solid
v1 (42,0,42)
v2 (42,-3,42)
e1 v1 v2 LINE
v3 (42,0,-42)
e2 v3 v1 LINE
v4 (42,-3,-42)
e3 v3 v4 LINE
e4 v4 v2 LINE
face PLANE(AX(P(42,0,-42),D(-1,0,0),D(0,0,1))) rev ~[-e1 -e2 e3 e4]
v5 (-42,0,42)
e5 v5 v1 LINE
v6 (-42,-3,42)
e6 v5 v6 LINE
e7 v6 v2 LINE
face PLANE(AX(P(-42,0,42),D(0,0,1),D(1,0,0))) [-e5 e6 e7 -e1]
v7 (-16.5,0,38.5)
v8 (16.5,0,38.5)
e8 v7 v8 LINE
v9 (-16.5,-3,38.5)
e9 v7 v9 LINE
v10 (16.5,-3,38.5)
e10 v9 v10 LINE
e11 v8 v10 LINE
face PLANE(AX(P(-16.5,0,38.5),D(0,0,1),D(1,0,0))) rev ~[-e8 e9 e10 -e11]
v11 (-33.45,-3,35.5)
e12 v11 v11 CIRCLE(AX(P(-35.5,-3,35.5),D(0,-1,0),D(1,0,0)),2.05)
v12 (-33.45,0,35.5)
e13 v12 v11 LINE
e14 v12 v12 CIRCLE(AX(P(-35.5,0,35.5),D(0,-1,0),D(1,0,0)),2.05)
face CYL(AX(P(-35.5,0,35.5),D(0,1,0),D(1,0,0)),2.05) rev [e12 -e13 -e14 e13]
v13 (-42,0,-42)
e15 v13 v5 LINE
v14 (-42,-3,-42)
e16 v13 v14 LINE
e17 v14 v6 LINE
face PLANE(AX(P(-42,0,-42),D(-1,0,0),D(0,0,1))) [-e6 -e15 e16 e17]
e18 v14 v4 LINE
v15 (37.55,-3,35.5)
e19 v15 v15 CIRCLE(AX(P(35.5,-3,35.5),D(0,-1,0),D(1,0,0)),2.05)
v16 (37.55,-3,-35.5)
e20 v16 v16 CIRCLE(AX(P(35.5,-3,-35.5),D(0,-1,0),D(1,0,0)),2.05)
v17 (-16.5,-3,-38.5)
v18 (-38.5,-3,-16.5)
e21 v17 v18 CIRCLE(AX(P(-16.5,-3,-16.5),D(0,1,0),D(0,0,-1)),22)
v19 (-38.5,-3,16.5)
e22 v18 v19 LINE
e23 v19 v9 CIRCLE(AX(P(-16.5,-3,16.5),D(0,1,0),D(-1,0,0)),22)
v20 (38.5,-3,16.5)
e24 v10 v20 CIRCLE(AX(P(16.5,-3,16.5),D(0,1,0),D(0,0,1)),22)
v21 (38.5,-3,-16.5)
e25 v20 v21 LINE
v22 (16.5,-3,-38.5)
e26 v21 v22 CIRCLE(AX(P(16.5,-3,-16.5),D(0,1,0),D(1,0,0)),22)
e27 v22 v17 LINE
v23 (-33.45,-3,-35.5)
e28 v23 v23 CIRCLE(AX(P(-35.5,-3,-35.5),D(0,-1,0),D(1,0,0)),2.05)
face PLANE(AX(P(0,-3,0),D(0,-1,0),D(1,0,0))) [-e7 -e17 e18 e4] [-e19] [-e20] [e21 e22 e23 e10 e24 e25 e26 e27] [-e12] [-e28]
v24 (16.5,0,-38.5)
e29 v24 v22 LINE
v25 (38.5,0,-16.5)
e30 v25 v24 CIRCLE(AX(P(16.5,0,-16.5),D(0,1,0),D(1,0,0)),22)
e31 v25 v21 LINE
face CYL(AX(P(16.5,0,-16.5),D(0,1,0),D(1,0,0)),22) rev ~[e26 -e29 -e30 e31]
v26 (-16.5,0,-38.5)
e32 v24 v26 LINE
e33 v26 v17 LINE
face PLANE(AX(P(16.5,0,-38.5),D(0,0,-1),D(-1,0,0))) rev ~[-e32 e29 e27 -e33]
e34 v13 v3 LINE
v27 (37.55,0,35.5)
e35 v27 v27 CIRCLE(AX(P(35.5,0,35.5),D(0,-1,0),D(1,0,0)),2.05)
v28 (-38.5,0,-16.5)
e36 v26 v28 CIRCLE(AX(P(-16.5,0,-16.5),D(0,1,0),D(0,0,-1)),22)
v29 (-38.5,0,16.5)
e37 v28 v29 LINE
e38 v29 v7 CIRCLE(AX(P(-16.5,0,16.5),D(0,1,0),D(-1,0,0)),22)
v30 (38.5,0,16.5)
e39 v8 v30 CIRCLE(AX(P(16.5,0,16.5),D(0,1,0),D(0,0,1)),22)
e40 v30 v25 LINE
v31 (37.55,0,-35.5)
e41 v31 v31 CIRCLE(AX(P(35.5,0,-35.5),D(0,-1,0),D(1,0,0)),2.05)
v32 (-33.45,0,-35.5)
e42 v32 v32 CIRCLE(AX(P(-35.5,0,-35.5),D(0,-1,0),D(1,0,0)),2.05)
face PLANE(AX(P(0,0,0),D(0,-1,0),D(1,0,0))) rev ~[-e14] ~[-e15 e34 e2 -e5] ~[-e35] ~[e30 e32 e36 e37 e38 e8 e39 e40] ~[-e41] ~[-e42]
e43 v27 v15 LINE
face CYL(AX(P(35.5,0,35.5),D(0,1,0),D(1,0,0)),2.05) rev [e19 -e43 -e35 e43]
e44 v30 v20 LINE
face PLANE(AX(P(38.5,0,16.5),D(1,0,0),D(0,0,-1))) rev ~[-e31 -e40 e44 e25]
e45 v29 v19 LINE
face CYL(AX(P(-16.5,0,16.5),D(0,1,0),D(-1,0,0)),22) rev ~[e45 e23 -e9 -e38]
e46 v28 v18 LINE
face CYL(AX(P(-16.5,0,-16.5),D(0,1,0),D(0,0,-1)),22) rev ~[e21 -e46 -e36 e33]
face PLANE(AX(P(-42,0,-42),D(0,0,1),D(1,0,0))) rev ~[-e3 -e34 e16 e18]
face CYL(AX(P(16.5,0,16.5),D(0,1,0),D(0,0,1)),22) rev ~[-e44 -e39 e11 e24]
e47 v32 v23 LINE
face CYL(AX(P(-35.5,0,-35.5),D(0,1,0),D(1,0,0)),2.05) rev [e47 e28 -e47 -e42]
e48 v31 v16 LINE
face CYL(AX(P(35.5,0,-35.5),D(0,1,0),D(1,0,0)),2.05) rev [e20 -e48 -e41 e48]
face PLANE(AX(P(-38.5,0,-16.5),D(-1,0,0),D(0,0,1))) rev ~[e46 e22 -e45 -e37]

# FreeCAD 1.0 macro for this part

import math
import FreeCAD as App
import Part
import Sketcher
from FreeCAD import Vector
Q = App.Units.Quantity

doc = App.newDocument("Part")
body = doc.addObject("PartDesign::Body", "Body")

sketch1 = body.newObject("Sketcher::SketchObject", "Sketch")
sketch1.AttachmentSupport = (doc.getObject("XZ_Plane"), [""])
sketch1.MapMode = "FlatFace"
sketch1.addGeometry(Part.LineSegment(Vector(-42, 42, 0), Vector(-42, -42, 0)), False)
sketch1.addGeometry(Part.LineSegment(Vector(-42, -42, 0), Vector(42, -42, 0)), False)
sketch1.addGeometry(Part.LineSegment(Vector(42, -42, 0), Vector(42, 42, 0)), False)
sketch1.addGeometry(Part.LineSegment(Vector(42, 42, 0), Vector(-42, 42, 0)), False)
sketch1.addGeometry(Part.Circle(Vector(-35.5, -35.5, 0), Vector(0, 0, 1), 2.05), False)
sketch1.addGeometry(Part.Circle(Vector(35.5, -35.5, 0), Vector(0, 0, 1), 2.05), False)
sketch1.addGeometry(Part.Circle(Vector(-35.5, 35.5, 0), Vector(0, 0, 1), 2.05), False)
sketch1.addGeometry(Part.ArcOfCircle(Part.Circle(Vector(-16.5, 16.5, 0), Vector(0, 0, 1), 22), math.radians(90), math.radians(180)), False)
sketch1.addGeometry(Part.LineSegment(Vector(-16.5, 38.5, 0), Vector(16.5, 38.5, 0)), False)
sketch1.addGeometry(Part.ArcOfCircle(Part.Circle(Vector(16.5, 16.5, 0), Vector(0, 0, 1), 22), math.radians(0), math.radians(90)), False)
sketch1.addGeometry(Part.LineSegment(Vector(38.5, 16.5, 0), Vector(38.5, -16.5, 0)), False)
sketch1.addGeometry(Part.ArcOfCircle(Part.Circle(Vector(16.5, -16.5, 0), Vector(0, 0, 1), 22), math.radians(-90), math.radians(0)), False)
sketch1.addGeometry(Part.LineSegment(Vector(16.5, -38.5, 0), Vector(-16.5, -38.5, 0)), False)
sketch1.addGeometry(Part.ArcOfCircle(Part.Circle(Vector(-16.5, -16.5, 0), Vector(0, 0, 1), 22), math.radians(180), math.radians(270)), False)
sketch1.addGeometry(Part.LineSegment(Vector(-38.5, -16.5, 0), Vector(-38.5, 16.5, 0)), False)
sketch1.addGeometry(Part.Circle(Vector(35.5, 35.5, 0), Vector(0, 0, 1), 2.05), False)
sketch1.addConstraint(Sketcher.Constraint("Coincident", 0, 2, 1, 1))
sketch1.addConstraint(Sketcher.Constraint("Coincident", 1, 2, 2, 1))
sketch1.addConstraint(Sketcher.Constraint("Coincident", 2, 2, 3, 1))
sketch1.addConstraint(Sketcher.Constraint("Coincident", 3, 2, 0, 1))
sketch1.addConstraint(Sketcher.Constraint("Tangent", 7, 1, 8, 1))
sketch1.addConstraint(Sketcher.Constraint("Tangent", 8, 2, 9, 2))
sketch1.addConstraint(Sketcher.Constraint("Tangent", 9, 1, 10, 1))
sketch1.addConstraint(Sketcher.Constraint("Tangent", 10, 2, 11, 2))
sketch1.addConstraint(Sketcher.Constraint("Tangent", 11, 1, 12, 1))
sketch1.addConstraint(Sketcher.Constraint("Tangent", 12, 2, 13, 2))
sketch1.addConstraint(Sketcher.Constraint("Tangent", 13, 1, 14, 1))
sketch1.addConstraint(Sketcher.Constraint("Tangent", 14, 2, 7, 2))
sketch1.addConstraint(Sketcher.Constraint("Vertical", 0))
sketch1.addConstraint(Sketcher.Constraint("Horizontal", 1))
sketch1.addConstraint(Sketcher.Constraint("Vertical", 2))
sketch1.addConstraint(Sketcher.Constraint("Horizontal", 3))
sketch1.addConstraint(Sketcher.Constraint("Horizontal", 8))
sketch1.addConstraint(Sketcher.Constraint("Vertical", 10))
sketch1.addConstraint(Sketcher.Constraint("Horizontal", 12))
sketch1.addConstraint(Sketcher.Constraint("Vertical", 14))
sketch1.addConstraint(Sketcher.Constraint("Equal", 4, 5))
sketch1.addConstraint(Sketcher.Constraint("Equal", 5, 6))
sketch1.addConstraint(Sketcher.Constraint("Equal", 7, 9))
sketch1.addConstraint(Sketcher.Constraint("Equal", 9, 11))
sketch1.addConstraint(Sketcher.Constraint("Equal", 11, 13))
sketch1.addConstraint(Sketcher.Constraint("Equal", 6, 15))
sketch1.addConstraint(Sketcher.Constraint("Symmetric", 5, 3, 6, 3, -1, 1))
sketch1.addConstraint(Sketcher.Constraint("Symmetric", 7, 3, 11, 3, -1, 1))
sketch1.addConstraint(Sketcher.Constraint("Symmetric", 4, 3, 15, 3, -1, 1))
sketch1.addConstraint(Sketcher.Constraint("Symmetric", 0, 2, 2, 2, -1, 1))
sketch1.addConstraint(Sketcher.Constraint("Symmetric", 4, 3, 5, 3, -2))
sketch1.addConstraint(Sketcher.Constraint("Equal", 3, 0))
sketch1.addConstraint(Sketcher.Constraint("Equal", 12, 10))
sketch1.addConstraint(Sketcher.Constraint("Radius", 7, Q("22 mm")))
sketch1.addConstraint(Sketcher.Constraint("Diameter", 4, Q("4.1 mm")))
sketch1.addConstraint(Sketcher.Constraint("DistanceX", 1, 1, 1, 2, Q("84 mm")))
sketch1.addConstraint(Sketcher.Constraint("DistanceX", 8, 1, 8, 2, Q("33 mm")))
sketch1.addConstraint(Sketcher.Constraint("DistanceX", 4, 3, 5, 3, Q("71 mm")))
sketch1.addConstraint(Sketcher.Constraint("DistanceY", 4, 3, 6, 3, Q("71 mm")))
pad1 = body.newObject("PartDesign::Pad", "Pad")
pad1.Profile = sketch1
pad1.Length = 3

doc.recompute()
